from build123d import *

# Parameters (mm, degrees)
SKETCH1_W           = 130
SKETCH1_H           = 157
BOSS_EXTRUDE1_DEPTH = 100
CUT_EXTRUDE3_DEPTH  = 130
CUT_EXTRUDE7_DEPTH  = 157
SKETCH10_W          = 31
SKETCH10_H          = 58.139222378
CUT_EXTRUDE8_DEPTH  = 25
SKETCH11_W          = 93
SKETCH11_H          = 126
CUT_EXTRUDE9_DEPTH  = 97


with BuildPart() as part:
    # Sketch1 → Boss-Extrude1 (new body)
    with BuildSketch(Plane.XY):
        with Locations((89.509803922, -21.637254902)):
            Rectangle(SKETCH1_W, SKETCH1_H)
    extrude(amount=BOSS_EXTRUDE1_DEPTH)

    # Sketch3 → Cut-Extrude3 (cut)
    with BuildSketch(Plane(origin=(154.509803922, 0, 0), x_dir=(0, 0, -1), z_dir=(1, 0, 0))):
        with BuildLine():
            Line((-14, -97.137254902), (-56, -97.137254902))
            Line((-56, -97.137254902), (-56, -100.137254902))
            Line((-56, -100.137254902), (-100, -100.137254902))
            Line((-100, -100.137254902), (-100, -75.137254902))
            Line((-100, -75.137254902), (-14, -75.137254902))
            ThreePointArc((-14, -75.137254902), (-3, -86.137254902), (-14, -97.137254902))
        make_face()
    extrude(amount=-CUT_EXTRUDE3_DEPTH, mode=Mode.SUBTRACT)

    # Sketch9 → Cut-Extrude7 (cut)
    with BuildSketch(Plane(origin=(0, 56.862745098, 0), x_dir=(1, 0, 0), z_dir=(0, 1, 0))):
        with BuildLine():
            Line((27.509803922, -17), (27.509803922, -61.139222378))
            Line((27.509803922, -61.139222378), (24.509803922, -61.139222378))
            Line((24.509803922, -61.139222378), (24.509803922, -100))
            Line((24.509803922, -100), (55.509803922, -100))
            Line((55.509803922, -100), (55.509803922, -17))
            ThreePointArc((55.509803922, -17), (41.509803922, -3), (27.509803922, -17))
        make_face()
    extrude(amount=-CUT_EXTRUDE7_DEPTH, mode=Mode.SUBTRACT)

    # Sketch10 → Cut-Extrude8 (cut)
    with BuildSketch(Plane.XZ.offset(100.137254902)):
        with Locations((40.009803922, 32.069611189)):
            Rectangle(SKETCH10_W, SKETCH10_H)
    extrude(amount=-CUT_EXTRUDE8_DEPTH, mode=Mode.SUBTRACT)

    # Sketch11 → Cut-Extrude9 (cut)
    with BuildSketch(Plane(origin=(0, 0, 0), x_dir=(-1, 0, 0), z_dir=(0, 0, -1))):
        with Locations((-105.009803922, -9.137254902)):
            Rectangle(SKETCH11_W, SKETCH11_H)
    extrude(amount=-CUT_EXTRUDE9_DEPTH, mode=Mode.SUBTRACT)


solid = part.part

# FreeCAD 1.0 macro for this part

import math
import FreeCAD as App
import Part
import Sketcher
Q = App.Units.Quantity


def add_polygon(sketch, points):
    """Adds a closed chain of lines whose ends are joined by coincident constraints."""
    first, n = sketch.GeometryCount, len(points)
    for a, b in zip(points, points[1:] + points[:1]):
        sketch.addGeometry(Part.LineSegment(App.Vector(*a, 0), App.Vector(*b, 0)), False)
    for i in range(n):
        sketch.addConstraint(Sketcher.Constraint("Coincident", first + i, 2, first + (i + 1) % n, 1))

doc = App.newDocument("Part")
params = doc.addObject("Spreadsheet::Sheet", "Params")
for row, (alias, value) in enumerate([
    ("sketch1_width", "130 mm"),
    ("sketch1_height", "157 mm"),
    ("pad1_length", "100 mm"),
    ("sketch2_radius", "11 mm"),
    ("sketch2_width", "25 mm"),
    ("sketch2_height", "42 mm"),
    ("sketch2_height2", "86 mm"),
    ("pocket1_length", "130 mm"),
    ("sketch3_radius", "14 mm"),
    ("sketch3_width", "3 mm"),
    ("sketch3_height", "83 mm"),
    ("pocket2_length", "157 mm"),
    ("sketch4_width", "31 mm"),
    ("pocket3_length", "25 mm"),
    ("sketch5_width", "93 mm"),
    ("sketch5_height", "126 mm"),
    ("pocket4_length", "97 mm"),
], start=1):
    params.set(f"A{row}", alias)
    params.set(f"B{row}", "=" + value)
    params.setAlias(f"B{row}", alias)

body = doc.addObject("PartDesign::Body", "Body")

# Sketch on XY plane
sketch1 = doc.addObject("Sketcher::SketchObject", "Sketch")
body.addObject(sketch1)
sketch1.AttachmentSupport = (doc.XY_Plane, [""])
sketch1.MapMode = "FlatFace"
add_polygon(sketch1, [(25, 57), (25, -100), (155, -100), (155, 57)])  # lines 0-3
sketch1.addConstraint([
    Sketcher.Constraint("Vertical", 0),
    Sketcher.Constraint("Horizontal", 1),
    Sketcher.Constraint("Vertical", 2),
    Sketcher.Constraint("Horizontal", 3),
    Sketcher.Constraint("DistanceX", 1, 1, 1, 2, Q("130 mm")),
    Sketcher.Constraint("DistanceY", 0, 2, 0, 1, Q("157 mm")),
    Sketcher.Constraint("DistanceX", -1, 1, 0, 2, Q("24.509804 mm")),
    Sketcher.Constraint("DistanceY", 0, 2, -1, 1, Q("100.137255 mm")),
])
sketch1.setExpression("Constraints[8]", "Params.sketch1_width")
sketch1.setExpression("Constraints[9]", "Params.sketch1_height")
pad1 = doc.addObject("PartDesign::Pad", "Pad")
body.addObject(pad1)
pad1.Profile = sketch1
pad1.setExpression("Length", "Params.pad1_length")

# Sketch on YZ plane
sketch2 = doc.addObject("Sketcher::SketchObject", "Sketch001")
body.addObject(sketch2)
sketch2.AttachmentSupport = (doc.YZ_Plane, [""])
sketch2.MapMode = "FlatFace"
sketch2.AttachmentOffset = App.Placement(App.Vector(0, 0, 154.509804), App.Rotation())
sketch2.addGeometry([
    Part.LineSegment(App.Vector(-97.1, 56, 0), App.Vector(-97.1, 14, 0)),  # 0
    Part.ArcOfCircle(Part.Circle(App.Vector(-86.1, 14, 0), App.Vector(0, 0, 1), 11), math.radians(180), math.radians(360)),  # 1
    Part.LineSegment(App.Vector(-75.1, 14, 0), App.Vector(-75.1, 100, 0)),  # 2
    Part.LineSegment(App.Vector(-75.1, 100, 0), App.Vector(-100.1, 100, 0)),  # 3
    Part.LineSegment(App.Vector(-100.1, 100, 0), App.Vector(-100.1, 56, 0)),  # 4
    Part.LineSegment(App.Vector(-100.1, 56, 0), App.Vector(-97.1, 56, 0)),  # 5
], False)
sketch2.addConstraint([
    Sketcher.Constraint("Tangent", 0, 2, 1, 1),
    Sketcher.Constraint("Tangent", 1, 2, 2, 1),
    Sketcher.Constraint("Coincident", 2, 2, 3, 1),
    Sketcher.Constraint("Coincident", 3, 2, 4, 1),
    Sketcher.Constraint("Coincident", 4, 2, 5, 1),
    Sketcher.Constraint("Coincident", 5, 2, 0, 1),
    Sketcher.Constraint("Vertical", 0),
    Sketcher.Constraint("Vertical", 2),
    Sketcher.Constraint("Horizontal", 3),
    Sketcher.Constraint("Vertical", 4),
    Sketcher.Constraint("Horizontal", 5),
    Sketcher.Constraint("Radius", 1, Q("11 mm")),
    Sketcher.Constraint("DistanceX", 3, 2, 3, 1, Q("25 mm")),
    Sketcher.Constraint("DistanceY", 0, 2, 0, 1, Q("42 mm")),
    Sketcher.Constraint("DistanceY", 2, 1, 2, 2, Q("86 mm")),
    Sketcher.Constraint("DistanceY", -1, 1, 1, 3, Q("14 mm")),
    Sketcher.Constraint("DistanceX", 1, 3, -1, 1, Q("86.137255 mm")),
])
sketch2.setExpression("Constraints[11]", "Params.sketch2_radius")
sketch2.setExpression("Constraints[12]", "Params.sketch2_width")
sketch2.setExpression("Constraints[13]", "Params.sketch2_height")
sketch2.setExpression("Constraints[14]", "Params.sketch2_height2")
pocket1 = doc.addObject("PartDesign::Pocket", "Pocket")
body.addObject(pocket1)
pocket1.Profile = sketch2
pocket1.setExpression("Length", "Params.pocket1_length")

# Sketch on XZ plane
sketch3 = doc.addObject("Sketcher::SketchObject", "Sketch002")
body.addObject(sketch3)
sketch3.AttachmentSupport = (doc.XZ_Plane, [""])
sketch3.MapMode = "FlatFace"
sketch3.AttachmentOffset = App.Placement(App.Vector(0, 0, -56.862745), App.Rotation())
sketch3.addGeometry([
    Part.LineSegment(App.Vector(27.5, 17, 0), App.Vector(27.5, 61.1, 0)),  # 0
    Part.LineSegment(App.Vector(27.5, 61.1, 0), App.Vector(24.5, 61.1, 0)),  # 1
    Part.LineSegment(App.Vector(24.5, 61.1, 0), App.Vector(24.5, 100, 0)),  # 2
    Part.LineSegment(App.Vector(24.5, 100, 0), App.Vector(55.5, 100, 0)),  # 3
    Part.LineSegment(App.Vector(55.5, 100, 0), App.Vector(55.5, 17, 0)),  # 4
    Part.ArcOfCircle(Part.Circle(App.Vector(41.5, 17, 0), App.Vector(0, 0, 1), 14), math.radians(180), math.radians(360)),  # 5
], False)
sketch3.addConstraint([
    Sketcher.Constraint("Coincident", 0, 2, 1, 1),
    Sketcher.Constraint("Coincident", 1, 2, 2, 1),
    Sketcher.Constraint("Coincident", 2, 2, 3, 1),
    Sketcher.Constraint("Coincident", 3, 2, 4, 1),
    Sketcher.Constraint("Tangent", 4, 2, 5, 2),
    Sketcher.Constraint("Tangent", 5, 1, 0, 1),
    Sketcher.Constraint("Vertical", 0),
    Sketcher.Constraint("Horizontal", 1),
    Sketcher.Constraint("Vertical", 2),
    Sketcher.Constraint("Horizontal", 3),
    Sketcher.Constraint("Vertical", 4),
    Sketcher.Constraint("Radius", 5, Q("14 mm")),
    Sketcher.Constraint("DistanceX", 1, 2, 1, 1, Q("3 mm")),
    Sketcher.Constraint("DistanceY", 4, 2, 4, 1, Q("83 mm")),
    Sketcher.Constraint("DistanceY", -1, 1, 5, 3, Q("17 mm")),
    Sketcher.Constraint("DistanceY", 0, 1, 0, 2, Q("44.139222 mm")),
    Sketcher.Constraint("DistanceX", -1, 1, 5, 3, Q("41.509804 mm")),
])
sketch3.setExpression("Constraints[11]", "Params.sketch3_radius")
sketch3.setExpression("Constraints[12]", "Params.sketch3_width")
sketch3.setExpression("Constraints[13]", "Params.sketch3_height")
pocket2 = doc.addObject("PartDesign::Pocket", "Pocket001")
body.addObject(pocket2)
pocket2.Profile = sketch3
pocket2.setExpression("Length", "Params.pocket2_length")
pocket2.Reversed = True

# Sketch on XZ plane
sketch4 = doc.addObject("Sketcher::SketchObject", "Sketch003")
body.addObject(sketch4)
sketch4.AttachmentSupport = (doc.XZ_Plane, [""])
sketch4.MapMode = "FlatFace"
sketch4.AttachmentOffset = App.Placement(App.Vector(0, 0, 100.137255), App.Rotation())
add_polygon(sketch4, [(25, 61), (25, 3), (56, 3), (56, 61)])  # lines 0-3
sketch4.addConstraint([
    Sketcher.Constraint("Vertical", 0),
    Sketcher.Constraint("Horizontal", 1),
    Sketcher.Constraint("Vertical", 2),
    Sketcher.Constraint("Horizontal", 3),
    Sketcher.Constraint("DistanceX", 1, 1, 1, 2, Q("31 mm")),
    Sketcher.Constraint("DistanceY", -1, 1, 0, 2, Q("3 mm")),
    Sketcher.Constraint("DistanceY", 0, 2, 0, 1, Q("58.139222 mm")),
    Sketcher.Constraint("DistanceX", -1, 1, 0, 2, Q("24.509804 mm")),
])
sketch4.setExpression("Constraints[8]", "Params.sketch4_width")
pocket3 = doc.addObject("PartDesign::Pocket", "Pocket002")
body.addObject(pocket3)
pocket3.Profile = sketch4
pocket3.setExpression("Length", "Params.pocket3_length")

# Sketch on XY plane
sketch5 = doc.addObject("Sketcher::SketchObject", "Sketch004")
body.addObject(sketch5)
sketch5.AttachmentSupport = (doc.XY_Plane, [""])
sketch5.MapMode = "FlatFace"
add_polygon(sketch5, [(152, 54), (152, -72), (59, -72), (59, 54)])  # lines 0-3
sketch5.addConstraint([
    Sketcher.Constraint("Vertical", 0),
    Sketcher.Constraint("Horizontal", 1),
    Sketcher.Constraint("Vertical", 2),
    Sketcher.Constraint("Horizontal", 3),
    Sketcher.Constraint("DistanceX", 1, 2, 1, 1, Q("93 mm")),
    Sketcher.Constraint("DistanceY", 0, 2, 0, 1, Q("126 mm")),
    Sketcher.Constraint("DistanceX", -1, 1, 0, 2, Q("151.509804 mm")),
    Sketcher.Constraint("DistanceY", 0, 2, -1, 1, Q("72.137255 mm")),
])
sketch5.setExpression("Constraints[8]", "Params.sketch5_width")
sketch5.setExpression("Constraints[9]", "Params.sketch5_height")
pocket4 = doc.addObject("PartDesign::Pocket", "Pocket003")
body.addObject(pocket4)
pocket4.Profile = sketch5
pocket4.setExpression("Length", "Params.pocket4_length")
pocket4.Reversed = True

doc.recompute()
